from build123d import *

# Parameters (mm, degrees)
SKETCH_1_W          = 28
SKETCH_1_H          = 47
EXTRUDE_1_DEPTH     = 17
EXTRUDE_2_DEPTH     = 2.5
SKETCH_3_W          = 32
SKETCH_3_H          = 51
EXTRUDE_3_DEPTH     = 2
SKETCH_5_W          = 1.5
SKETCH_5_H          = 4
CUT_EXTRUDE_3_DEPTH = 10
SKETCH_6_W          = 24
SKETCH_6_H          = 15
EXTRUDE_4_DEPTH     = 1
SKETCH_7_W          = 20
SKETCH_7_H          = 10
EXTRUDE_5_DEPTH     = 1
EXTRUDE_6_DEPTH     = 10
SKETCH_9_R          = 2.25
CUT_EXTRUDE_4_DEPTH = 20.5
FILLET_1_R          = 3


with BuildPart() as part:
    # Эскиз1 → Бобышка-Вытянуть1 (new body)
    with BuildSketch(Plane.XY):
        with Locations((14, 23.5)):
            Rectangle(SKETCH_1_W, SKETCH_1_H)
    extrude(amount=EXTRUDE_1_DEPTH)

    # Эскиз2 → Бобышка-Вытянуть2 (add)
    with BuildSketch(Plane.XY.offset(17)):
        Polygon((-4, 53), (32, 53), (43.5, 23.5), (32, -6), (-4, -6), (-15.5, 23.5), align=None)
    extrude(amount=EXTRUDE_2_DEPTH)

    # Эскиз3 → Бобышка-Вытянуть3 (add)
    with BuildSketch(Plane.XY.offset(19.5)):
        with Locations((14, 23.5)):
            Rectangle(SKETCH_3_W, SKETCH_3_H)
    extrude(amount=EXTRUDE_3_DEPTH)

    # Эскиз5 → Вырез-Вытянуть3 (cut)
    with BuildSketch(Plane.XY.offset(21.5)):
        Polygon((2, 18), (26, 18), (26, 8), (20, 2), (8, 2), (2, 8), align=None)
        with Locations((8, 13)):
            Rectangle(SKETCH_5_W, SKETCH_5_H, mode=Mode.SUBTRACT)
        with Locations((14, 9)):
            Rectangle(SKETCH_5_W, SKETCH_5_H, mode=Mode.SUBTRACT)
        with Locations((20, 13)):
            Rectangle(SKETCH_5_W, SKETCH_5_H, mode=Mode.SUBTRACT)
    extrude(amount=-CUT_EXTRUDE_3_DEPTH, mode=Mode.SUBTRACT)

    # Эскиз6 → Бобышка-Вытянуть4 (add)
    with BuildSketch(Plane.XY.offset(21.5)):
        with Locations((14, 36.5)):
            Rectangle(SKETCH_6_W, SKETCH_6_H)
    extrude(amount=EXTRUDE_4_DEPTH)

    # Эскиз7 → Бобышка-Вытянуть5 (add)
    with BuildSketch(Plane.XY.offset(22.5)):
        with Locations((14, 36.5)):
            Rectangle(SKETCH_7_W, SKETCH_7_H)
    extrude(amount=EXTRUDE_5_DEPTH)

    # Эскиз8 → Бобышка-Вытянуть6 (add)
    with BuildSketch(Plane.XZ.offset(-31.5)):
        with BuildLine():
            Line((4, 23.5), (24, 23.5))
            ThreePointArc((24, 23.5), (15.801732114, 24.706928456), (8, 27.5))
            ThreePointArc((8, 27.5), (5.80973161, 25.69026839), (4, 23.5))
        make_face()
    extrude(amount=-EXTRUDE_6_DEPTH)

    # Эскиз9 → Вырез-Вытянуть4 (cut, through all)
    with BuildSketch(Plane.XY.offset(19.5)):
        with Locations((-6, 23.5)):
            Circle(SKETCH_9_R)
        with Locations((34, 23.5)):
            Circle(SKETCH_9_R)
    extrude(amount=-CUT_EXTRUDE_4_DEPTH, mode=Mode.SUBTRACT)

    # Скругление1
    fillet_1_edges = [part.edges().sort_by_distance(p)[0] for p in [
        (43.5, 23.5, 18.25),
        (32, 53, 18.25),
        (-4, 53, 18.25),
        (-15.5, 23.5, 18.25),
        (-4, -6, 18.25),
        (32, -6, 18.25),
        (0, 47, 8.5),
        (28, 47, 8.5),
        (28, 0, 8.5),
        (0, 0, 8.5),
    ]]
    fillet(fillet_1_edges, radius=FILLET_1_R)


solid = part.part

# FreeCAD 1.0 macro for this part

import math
import FreeCAD as App
import Part
import Sketcher

V = App.Vector
Q = App.Units.Quantity


def edges_at(feature, points):
    """Names of the edges that pass closest to the given points."""
    edges = feature.Shape.Edges
    near = lambda p: min(range(len(edges)), key=lambda i: edges[i].distToShape(Part.Vertex(*p))[0])
    return sorted({f"Edge{near(p) + 1}" for p in points})


def add_polygon(sketch, points):
    """Adds a closed chain of lines whose ends are joined by coincident constraints."""
    first, n = sketch.GeometryCount, len(points)
    for a, b in zip(points, points[1:] + points[:1]):
        sketch.addGeometry(Part.LineSegment(App.Vector(*a, 0), App.Vector(*b, 0)), False)
    for i in range(n):
        sketch.addConstraint(Sketcher.Constraint("Coincident", first + i, 2, first + (i + 1) % n, 1))

doc = App.newDocument("Part")
params = doc.addObject("Spreadsheet::Sheet", "Params")
for row, (alias, value) in enumerate([
    ("sketch1_width", "28 mm"),
    ("sketch1_height", "47 mm"),
    ("pad1_length", "17 mm"),
    ("sketch2_width", "36 mm"),
    ("pad2_length", "2.5 mm"),
    ("sketch3_width", "32 mm"),
    ("sketch3_height", "51 mm"),
    ("pad3_length", "2 mm"),
    ("sketch4_width", "24 mm"),
    ("sketch4_width2", "12 mm"),
    ("sketch4_height", "10 mm"),
    ("sketch4_height2", "4 mm"),
    ("sketch4_width3", "1.5 mm"),
    ("pocket1_length", "10 mm"),
    ("sketch5_width", "24 mm"),
    ("sketch5_height", "15 mm"),
    ("pad4_length", "1 mm"),
    ("sketch6_width", "20 mm"),
    ("sketch6_height", "10 mm"),
    ("pad5_length", "1 mm"),
    ("sketch7_radius", "42 mm"),
    ("sketch7_radius2", "15 mm"),
    ("sketch7_width", "20 mm"),
    ("pad6_length", "10 mm"),
    ("sketch8_diameter", "4.5 mm"),
    ("fillet_radius", "3 mm"),
], start=1):
    params.set(f"A{row}", alias)
    params.set(f"B{row}", "=" + value)
    params.setAlias(f"B{row}", alias)

body = doc.addObject("PartDesign::Body", "Body")

sketch1 = body.newObject("Sketcher::SketchObject", "Sketch")
sketch1.AttachmentSupport = (doc.getObject("XY_Plane"), [""])
sketch1.MapMode = "FlatFace"
add_polygon(sketch1, [(0, 47), (0, 0), (28, 0), (28, 47)])
sketch1.addConstraint([
    Sketcher.Constraint("Vertical", 0),
    Sketcher.Constraint("Horizontal", 1),
    Sketcher.Constraint("Vertical", 2),
    Sketcher.Constraint("Horizontal", 3),
    Sketcher.Constraint("Coincident", 0, 2, -1, 1),
    Sketcher.Constraint("DistanceX", 1, 1, 1, 2, Q("28 mm")),
    Sketcher.Constraint("DistanceY", 0, 2, 0, 1, Q("47 mm")),
])
sketch1.setExpression("Constraints[9]", "Params.sketch1_width")
sketch1.setExpression("Constraints[10]", "Params.sketch1_height")
pad1 = body.newObject("PartDesign::Pad", "Pad")
pad1.Profile = sketch1
pad1.setExpression("Length", "Params.pad1_length")

sketch2 = body.newObject("Sketcher::SketchObject", "Sketch001")
sketch2.AttachmentSupport = (doc.getObject("XY_Plane"), [""])
sketch2.MapMode = "FlatFace"
sketch2.AttachmentOffset = App.Placement(V(0, 0, 17), App.Rotation())
add_polygon(sketch2, [(32, 53), (-4, 53), (-16, 24), (-4, -6), (32, -6), (44, 24)])
sketch2.addConstraint([
    Sketcher.Constraint("Horizontal", 0),
    Sketcher.Constraint("Horizontal", 3),
    Sketcher.Constraint("Parallel", 1, 4),
    Sketcher.Constraint("Parallel", 2, 5),
    Sketcher.Constraint("Horizontal", 1, 2, 4, 2),
    Sketcher.Constraint("Vertical", 0, 2, 2, 2),
    Sketcher.Constraint("Vertical", 3, 2, 5, 2),
    Sketcher.Constraint("DistanceX", 0, 2, 0, 1, Q("36 mm")),
    Sketcher.Constraint("DistanceX", 0, 2, -1, 1, Q("4 mm")),
    Sketcher.Constraint("DistanceY", -1, 1, 0, 2, Q("53 mm")),
    Sketcher.Constraint("DistanceY", 2, 2, -1, 1, Q("6 mm")),
    Sketcher.Constraint("DistanceX", 1, 2, 4, 2, Q("59 mm")),
])
sketch2.setExpression("Constraints[13]", "Params.sketch2_width")
pad2 = body.newObject("PartDesign::Pad", "Pad001")
pad2.Profile = sketch2
pad2.setExpression("Length", "Params.pad2_length")

sketch3 = body.newObject("Sketcher::SketchObject", "Sketch002")
sketch3.AttachmentSupport = (doc.getObject("XY_Plane"), [""])
sketch3.MapMode = "FlatFace"
sketch3.AttachmentOffset = App.Placement(V(0, 0, 19.5), App.Rotation())
add_polygon(sketch3, [(-2, 49), (-2, -2), (30, -2), (30, 49)])
sketch3.addConstraint([
    Sketcher.Constraint("Vertical", 0),
    Sketcher.Constraint("Horizontal", 1),
    Sketcher.Constraint("Vertical", 2),
    Sketcher.Constraint("Horizontal", 3),
    Sketcher.Constraint("DistanceX", 1, 1, 1, 2, Q("32 mm")),
    Sketcher.Constraint("DistanceY", 0, 2, 0, 1, Q("51 mm")),
    Sketcher.Constraint("DistanceX", 0, 2, -1, 1, Q("2 mm")),
    Sketcher.Constraint("DistanceY", 0, 2, -1, 1, Q("2 mm")),
])
sketch3.setExpression("Constraints[8]", "Params.sketch3_width")
sketch3.setExpression("Constraints[9]", "Params.sketch3_height")
pad3 = body.newObject("PartDesign::Pad", "Pad002")
pad3.Profile = sketch3
pad3.setExpression("Length", "Params.pad3_length")

sketch4 = body.newObject("Sketcher::SketchObject", "Sketch003")
sketch4.AttachmentSupport = (doc.getObject("XY_Plane"), [""])
sketch4.MapMode = "FlatFace"
sketch4.AttachmentOffset = App.Placement(V(0, 0, 21.5), App.Rotation())
add_polygon(sketch4, [(26, 18), (2, 18), (2, 8), (8, 2), (20, 2), (26, 8)])
add_polygon(sketch4, [(13.2, 7), (13.2, 11), (14.8, 11), (14.8, 7)])
add_polygon(sketch4, [(19.2, 11), (19.2, 15), (20.8, 15), (20.8, 11)])
add_polygon(sketch4, [(7.2, 11), (7.2, 15), (8.8, 15), (8.8, 11)])
sketch4.addConstraint([
    Sketcher.Constraint("Horizontal", 0),
    Sketcher.Constraint("Vertical", 1),
    Sketcher.Constraint("Horizontal", 3),
    Sketcher.Constraint("Vertical", 5),
    Sketcher.Constraint("Vertical", 6),
    Sketcher.Constraint("Horizontal", 7),
    Sketcher.Constraint("Vertical", 8),
    Sketcher.Constraint("Horizontal", 9),
    Sketcher.Constraint("Vertical", 10),
    Sketcher.Constraint("Horizontal", 11),
    Sketcher.Constraint("Vertical", 12),
    Sketcher.Constraint("Horizontal", 13),
    Sketcher.Constraint("Vertical", 14),
    Sketcher.Constraint("Horizontal", 15),
    Sketcher.Constraint("Vertical", 16),
    Sketcher.Constraint("Horizontal", 17),
    Sketcher.Constraint("Perpendicular", 2, 4),
    Sketcher.Constraint("Horizontal", 1, 2, 4, 2),
    Sketcher.Constraint("Horizontal", 7, 2, 12, 2),
    Sketcher.Constraint("Horizontal", 11, 2, 14, 2),
    Sketcher.Constraint("Horizontal", 13, 2, 16, 2),
    Sketcher.Constraint("Equal", 9, 11),
    Sketcher.Constraint("Equal", 13, 15),
    Sketcher.Constraint("Equal", 8, 10),
    Sketcher.Constraint("Equal", 2, 4),
    Sketcher.Constraint("DistanceX", 0, 2, 0, 1, Q("24 mm")),
    Sketcher.Constraint("DistanceX", 3, 1, 3, 2, Q("12 mm")),
    Sketcher.Constraint("DistanceY", 1, 2, 1, 1, Q("10 mm")),
    Sketcher.Constraint("DistanceY", 6, 1, 6, 2, Q("4 mm")),
    Sketcher.Constraint("DistanceX", 7, 1, 7, 2, Q("1.5 mm")),
    Sketcher.Constraint("DistanceX", -1, 1, 0, 2, Q("2 mm")),
    Sketcher.Constraint("DistanceY", -1, 1, 0, 2, Q("18 mm")),
    Sketcher.Constraint("DistanceY", -1, 1, 6, 2, Q("11 mm")),
    Sketcher.Constraint("DistanceX", 6, 2, 10, 2, Q("6 mm")),
    Sketcher.Constraint("DistanceX", 14, 2, 6, 2, Q("6 mm")),
    Sketcher.Constraint("DistanceX", -1, 1, 6, 2, Q("13.25 mm")),
])
sketch4.setExpression("Constraints[43]", "Params.sketch4_width")
sketch4.setExpression("Constraints[44]", "Params.sketch4_width2")
sketch4.setExpression("Constraints[45]", "Params.sketch4_height")
sketch4.setExpression("Constraints[46]", "Params.sketch4_height2")
sketch4.setExpression("Constraints[47]", "Params.sketch4_width3")
pocket1 = body.newObject("PartDesign::Pocket", "Pocket")
pocket1.Profile = sketch4
pocket1.setExpression("Length", "Params.pocket1_length")

sketch5 = body.newObject("Sketcher::SketchObject", "Sketch004")
sketch5.AttachmentSupport = (doc.getObject("XY_Plane"), [""])
sketch5.MapMode = "FlatFace"
sketch5.AttachmentOffset = App.Placement(V(0, 0, 21.5), App.Rotation())
add_polygon(sketch5, [(2, 44), (2, 29), (26, 29), (26, 44)])
sketch5.addConstraint([
    Sketcher.Constraint("Vertical", 0),
    Sketcher.Constraint("Horizontal", 1),
    Sketcher.Constraint("Vertical", 2),
    Sketcher.Constraint("Horizontal", 3),
    Sketcher.Constraint("DistanceX", 1, 1, 1, 2, Q("24 mm")),
    Sketcher.Constraint("DistanceY", 0, 2, 0, 1, Q("15 mm")),
    Sketcher.Constraint("DistanceX", -1, 1, 0, 2, Q("2 mm")),
    Sketcher.Constraint("DistanceY", -1, 1, 0, 2, Q("29 mm")),
])
sketch5.setExpression("Constraints[8]", "Params.sketch5_width")
sketch5.setExpression("Constraints[9]", "Params.sketch5_height")
pad4 = body.newObject("PartDesign::Pad", "Pad003")
pad4.Profile = sketch5
pad4.setExpression("Length", "Params.pad4_length")

sketch6 = body.newObject("Sketcher::SketchObject", "Sketch005")
sketch6.AttachmentSupport = (doc.getObject("XY_Plane"), [""])
sketch6.MapMode = "FlatFace"
sketch6.AttachmentOffset = App.Placement(V(0, 0, 22.5), App.Rotation())
add_polygon(sketch6, [(4, 42), (4, 32), (24, 32), (24, 42)])
sketch6.addConstraint([
    Sketcher.Constraint("Vertical", 0),
    Sketcher.Constraint("Horizontal", 1),
    Sketcher.Constraint("Vertical", 2),
    Sketcher.Constraint("Horizontal", 3),
    Sketcher.Constraint("DistanceX", 1, 1, 1, 2, Q("20 mm")),
    Sketcher.Constraint("DistanceY", 0, 2, 0, 1, Q("10 mm")),
    Sketcher.Constraint("DistanceX", -1, 1, 0, 2, Q("4 mm")),
    Sketcher.Constraint("DistanceY", -1, 1, 0, 2, Q("31.5 mm")),
])
sketch6.setExpression("Constraints[8]", "Params.sketch6_width")
sketch6.setExpression("Constraints[9]", "Params.sketch6_height")
pad5 = body.newObject("PartDesign::Pad", "Pad004")
pad5.Profile = sketch6
pad5.setExpression("Length", "Params.pad5_length")

sketch7 = body.newObject("Sketcher::SketchObject", "Sketch006")
sketch7.AttachmentSupport = (doc.getObject("XZ_Plane"), [""])
sketch7.MapMode = "FlatFace"
sketch7.AttachmentOffset = App.Placement(V(0, 0, -31.5), App.Rotation())
sketch7.addGeometry([
    Part.LineSegment(V(4, 24, 0), V(24, 24, 0)),
    Part.ArcOfCircle(Part.Circle(V(26, 65, 0), V(0, 0, 1), 42), math.radians(-115), math.radians(-93)),
    Part.ArcOfCircle(Part.Circle(V(16, 15, 0), V(0, 0, 1), 15), math.radians(124), math.radians(146)),
], False)
sketch7.addConstraint([
    Sketcher.Constraint("Coincident", 0, 2, 1, 2),
    Sketcher.Constraint("Coincident", 1, 1, 2, 1),
    Sketcher.Constraint("Coincident", 2, 2, 0, 1),
    Sketcher.Constraint("Horizontal", 0),
    Sketcher.Constraint("Radius", 1, Q("42 mm")),
    Sketcher.Constraint("Radius", 2, Q("15 mm")),
    Sketcher.Constraint("DistanceX", 0, 1, 0, 2, Q("20 mm")),
    Sketcher.Constraint("DistanceX", -1, 1, 0, 2, Q("24 mm")),
    Sketcher.Constraint("DistanceX", -1, 1, 1, 1, Q("8 mm")),
    Sketcher.Constraint("DistanceY", 0, 2, 1, 1, Q("4 mm")),
    Sketcher.Constraint("DistanceY", -1, 1, 0, 2, Q("23.5 mm")),
])
sketch7.setExpression("Constraints[4]", "Params.sketch7_radius")
sketch7.setExpression("Constraints[5]", "Params.sketch7_radius2")
sketch7.setExpression("Constraints[6]", "Params.sketch7_width")
pad6 = body.newObject("PartDesign::Pad", "Pad005")
pad6.Profile = sketch7
pad6.setExpression("Length", "Params.pad6_length")
pad6.Reversed = True

sketch8 = body.newObject("Sketcher::SketchObject", "Sketch007")
sketch8.AttachmentSupport = (doc.getObject("XY_Plane"), [""])
sketch8.MapMode = "FlatFace"
sketch8.AttachmentOffset = App.Placement(V(0, 0, 19.5), App.Rotation())
sketch8.addGeometry([
    Part.Circle(V(-6, 23.5, 0), V(0, 0, 1), 2.2),
    Part.Circle(V(34, 23.5, 0), V(0, 0, 1), 2.2),
], False)
sketch8.addConstraint([
    Sketcher.Constraint("Equal", 0, 1),
    Sketcher.Constraint("Horizontal", 0, 3, 1, 3),
    Sketcher.Constraint("Diameter", 0, Q("4.5 mm")),
    Sketcher.Constraint("DistanceX", 0, 3, -1, 1, Q("6 mm")),
    Sketcher.Constraint("DistanceX", -1, 1, 1, 3, Q("34 mm")),
    Sketcher.Constraint("DistanceY", -1, 1, 0, 3, Q("23.5 mm")),
])
sketch8.setExpression("Constraints[2]", "Params.sketch8_diameter")
pocket2 = body.newObject("PartDesign::Pocket", "Pocket001")
pocket2.Profile = sketch8
pocket2.Type = "ThroughAll"
doc.recompute()

fillet = body.newObject("PartDesign::Fillet", "Fillet")
fillet.Base = (pocket2, edges_at(pocket2, [
    (43.5, 23.5, 18.25),
    (32, 53, 18.25),
    (-4, 53, 18.25),
    (-15.5, 23.5, 18.25),
    (-4, -6, 18.25),
    (32, -6, 18.25),
    (0, 47, 8.5),
    (28, 47, 8.5),
    (28, 0, 8.5),
    (0, 0, 8.5),
]))
fillet.setExpression("Radius", "Params.fillet_radius")

doc.recompute()
